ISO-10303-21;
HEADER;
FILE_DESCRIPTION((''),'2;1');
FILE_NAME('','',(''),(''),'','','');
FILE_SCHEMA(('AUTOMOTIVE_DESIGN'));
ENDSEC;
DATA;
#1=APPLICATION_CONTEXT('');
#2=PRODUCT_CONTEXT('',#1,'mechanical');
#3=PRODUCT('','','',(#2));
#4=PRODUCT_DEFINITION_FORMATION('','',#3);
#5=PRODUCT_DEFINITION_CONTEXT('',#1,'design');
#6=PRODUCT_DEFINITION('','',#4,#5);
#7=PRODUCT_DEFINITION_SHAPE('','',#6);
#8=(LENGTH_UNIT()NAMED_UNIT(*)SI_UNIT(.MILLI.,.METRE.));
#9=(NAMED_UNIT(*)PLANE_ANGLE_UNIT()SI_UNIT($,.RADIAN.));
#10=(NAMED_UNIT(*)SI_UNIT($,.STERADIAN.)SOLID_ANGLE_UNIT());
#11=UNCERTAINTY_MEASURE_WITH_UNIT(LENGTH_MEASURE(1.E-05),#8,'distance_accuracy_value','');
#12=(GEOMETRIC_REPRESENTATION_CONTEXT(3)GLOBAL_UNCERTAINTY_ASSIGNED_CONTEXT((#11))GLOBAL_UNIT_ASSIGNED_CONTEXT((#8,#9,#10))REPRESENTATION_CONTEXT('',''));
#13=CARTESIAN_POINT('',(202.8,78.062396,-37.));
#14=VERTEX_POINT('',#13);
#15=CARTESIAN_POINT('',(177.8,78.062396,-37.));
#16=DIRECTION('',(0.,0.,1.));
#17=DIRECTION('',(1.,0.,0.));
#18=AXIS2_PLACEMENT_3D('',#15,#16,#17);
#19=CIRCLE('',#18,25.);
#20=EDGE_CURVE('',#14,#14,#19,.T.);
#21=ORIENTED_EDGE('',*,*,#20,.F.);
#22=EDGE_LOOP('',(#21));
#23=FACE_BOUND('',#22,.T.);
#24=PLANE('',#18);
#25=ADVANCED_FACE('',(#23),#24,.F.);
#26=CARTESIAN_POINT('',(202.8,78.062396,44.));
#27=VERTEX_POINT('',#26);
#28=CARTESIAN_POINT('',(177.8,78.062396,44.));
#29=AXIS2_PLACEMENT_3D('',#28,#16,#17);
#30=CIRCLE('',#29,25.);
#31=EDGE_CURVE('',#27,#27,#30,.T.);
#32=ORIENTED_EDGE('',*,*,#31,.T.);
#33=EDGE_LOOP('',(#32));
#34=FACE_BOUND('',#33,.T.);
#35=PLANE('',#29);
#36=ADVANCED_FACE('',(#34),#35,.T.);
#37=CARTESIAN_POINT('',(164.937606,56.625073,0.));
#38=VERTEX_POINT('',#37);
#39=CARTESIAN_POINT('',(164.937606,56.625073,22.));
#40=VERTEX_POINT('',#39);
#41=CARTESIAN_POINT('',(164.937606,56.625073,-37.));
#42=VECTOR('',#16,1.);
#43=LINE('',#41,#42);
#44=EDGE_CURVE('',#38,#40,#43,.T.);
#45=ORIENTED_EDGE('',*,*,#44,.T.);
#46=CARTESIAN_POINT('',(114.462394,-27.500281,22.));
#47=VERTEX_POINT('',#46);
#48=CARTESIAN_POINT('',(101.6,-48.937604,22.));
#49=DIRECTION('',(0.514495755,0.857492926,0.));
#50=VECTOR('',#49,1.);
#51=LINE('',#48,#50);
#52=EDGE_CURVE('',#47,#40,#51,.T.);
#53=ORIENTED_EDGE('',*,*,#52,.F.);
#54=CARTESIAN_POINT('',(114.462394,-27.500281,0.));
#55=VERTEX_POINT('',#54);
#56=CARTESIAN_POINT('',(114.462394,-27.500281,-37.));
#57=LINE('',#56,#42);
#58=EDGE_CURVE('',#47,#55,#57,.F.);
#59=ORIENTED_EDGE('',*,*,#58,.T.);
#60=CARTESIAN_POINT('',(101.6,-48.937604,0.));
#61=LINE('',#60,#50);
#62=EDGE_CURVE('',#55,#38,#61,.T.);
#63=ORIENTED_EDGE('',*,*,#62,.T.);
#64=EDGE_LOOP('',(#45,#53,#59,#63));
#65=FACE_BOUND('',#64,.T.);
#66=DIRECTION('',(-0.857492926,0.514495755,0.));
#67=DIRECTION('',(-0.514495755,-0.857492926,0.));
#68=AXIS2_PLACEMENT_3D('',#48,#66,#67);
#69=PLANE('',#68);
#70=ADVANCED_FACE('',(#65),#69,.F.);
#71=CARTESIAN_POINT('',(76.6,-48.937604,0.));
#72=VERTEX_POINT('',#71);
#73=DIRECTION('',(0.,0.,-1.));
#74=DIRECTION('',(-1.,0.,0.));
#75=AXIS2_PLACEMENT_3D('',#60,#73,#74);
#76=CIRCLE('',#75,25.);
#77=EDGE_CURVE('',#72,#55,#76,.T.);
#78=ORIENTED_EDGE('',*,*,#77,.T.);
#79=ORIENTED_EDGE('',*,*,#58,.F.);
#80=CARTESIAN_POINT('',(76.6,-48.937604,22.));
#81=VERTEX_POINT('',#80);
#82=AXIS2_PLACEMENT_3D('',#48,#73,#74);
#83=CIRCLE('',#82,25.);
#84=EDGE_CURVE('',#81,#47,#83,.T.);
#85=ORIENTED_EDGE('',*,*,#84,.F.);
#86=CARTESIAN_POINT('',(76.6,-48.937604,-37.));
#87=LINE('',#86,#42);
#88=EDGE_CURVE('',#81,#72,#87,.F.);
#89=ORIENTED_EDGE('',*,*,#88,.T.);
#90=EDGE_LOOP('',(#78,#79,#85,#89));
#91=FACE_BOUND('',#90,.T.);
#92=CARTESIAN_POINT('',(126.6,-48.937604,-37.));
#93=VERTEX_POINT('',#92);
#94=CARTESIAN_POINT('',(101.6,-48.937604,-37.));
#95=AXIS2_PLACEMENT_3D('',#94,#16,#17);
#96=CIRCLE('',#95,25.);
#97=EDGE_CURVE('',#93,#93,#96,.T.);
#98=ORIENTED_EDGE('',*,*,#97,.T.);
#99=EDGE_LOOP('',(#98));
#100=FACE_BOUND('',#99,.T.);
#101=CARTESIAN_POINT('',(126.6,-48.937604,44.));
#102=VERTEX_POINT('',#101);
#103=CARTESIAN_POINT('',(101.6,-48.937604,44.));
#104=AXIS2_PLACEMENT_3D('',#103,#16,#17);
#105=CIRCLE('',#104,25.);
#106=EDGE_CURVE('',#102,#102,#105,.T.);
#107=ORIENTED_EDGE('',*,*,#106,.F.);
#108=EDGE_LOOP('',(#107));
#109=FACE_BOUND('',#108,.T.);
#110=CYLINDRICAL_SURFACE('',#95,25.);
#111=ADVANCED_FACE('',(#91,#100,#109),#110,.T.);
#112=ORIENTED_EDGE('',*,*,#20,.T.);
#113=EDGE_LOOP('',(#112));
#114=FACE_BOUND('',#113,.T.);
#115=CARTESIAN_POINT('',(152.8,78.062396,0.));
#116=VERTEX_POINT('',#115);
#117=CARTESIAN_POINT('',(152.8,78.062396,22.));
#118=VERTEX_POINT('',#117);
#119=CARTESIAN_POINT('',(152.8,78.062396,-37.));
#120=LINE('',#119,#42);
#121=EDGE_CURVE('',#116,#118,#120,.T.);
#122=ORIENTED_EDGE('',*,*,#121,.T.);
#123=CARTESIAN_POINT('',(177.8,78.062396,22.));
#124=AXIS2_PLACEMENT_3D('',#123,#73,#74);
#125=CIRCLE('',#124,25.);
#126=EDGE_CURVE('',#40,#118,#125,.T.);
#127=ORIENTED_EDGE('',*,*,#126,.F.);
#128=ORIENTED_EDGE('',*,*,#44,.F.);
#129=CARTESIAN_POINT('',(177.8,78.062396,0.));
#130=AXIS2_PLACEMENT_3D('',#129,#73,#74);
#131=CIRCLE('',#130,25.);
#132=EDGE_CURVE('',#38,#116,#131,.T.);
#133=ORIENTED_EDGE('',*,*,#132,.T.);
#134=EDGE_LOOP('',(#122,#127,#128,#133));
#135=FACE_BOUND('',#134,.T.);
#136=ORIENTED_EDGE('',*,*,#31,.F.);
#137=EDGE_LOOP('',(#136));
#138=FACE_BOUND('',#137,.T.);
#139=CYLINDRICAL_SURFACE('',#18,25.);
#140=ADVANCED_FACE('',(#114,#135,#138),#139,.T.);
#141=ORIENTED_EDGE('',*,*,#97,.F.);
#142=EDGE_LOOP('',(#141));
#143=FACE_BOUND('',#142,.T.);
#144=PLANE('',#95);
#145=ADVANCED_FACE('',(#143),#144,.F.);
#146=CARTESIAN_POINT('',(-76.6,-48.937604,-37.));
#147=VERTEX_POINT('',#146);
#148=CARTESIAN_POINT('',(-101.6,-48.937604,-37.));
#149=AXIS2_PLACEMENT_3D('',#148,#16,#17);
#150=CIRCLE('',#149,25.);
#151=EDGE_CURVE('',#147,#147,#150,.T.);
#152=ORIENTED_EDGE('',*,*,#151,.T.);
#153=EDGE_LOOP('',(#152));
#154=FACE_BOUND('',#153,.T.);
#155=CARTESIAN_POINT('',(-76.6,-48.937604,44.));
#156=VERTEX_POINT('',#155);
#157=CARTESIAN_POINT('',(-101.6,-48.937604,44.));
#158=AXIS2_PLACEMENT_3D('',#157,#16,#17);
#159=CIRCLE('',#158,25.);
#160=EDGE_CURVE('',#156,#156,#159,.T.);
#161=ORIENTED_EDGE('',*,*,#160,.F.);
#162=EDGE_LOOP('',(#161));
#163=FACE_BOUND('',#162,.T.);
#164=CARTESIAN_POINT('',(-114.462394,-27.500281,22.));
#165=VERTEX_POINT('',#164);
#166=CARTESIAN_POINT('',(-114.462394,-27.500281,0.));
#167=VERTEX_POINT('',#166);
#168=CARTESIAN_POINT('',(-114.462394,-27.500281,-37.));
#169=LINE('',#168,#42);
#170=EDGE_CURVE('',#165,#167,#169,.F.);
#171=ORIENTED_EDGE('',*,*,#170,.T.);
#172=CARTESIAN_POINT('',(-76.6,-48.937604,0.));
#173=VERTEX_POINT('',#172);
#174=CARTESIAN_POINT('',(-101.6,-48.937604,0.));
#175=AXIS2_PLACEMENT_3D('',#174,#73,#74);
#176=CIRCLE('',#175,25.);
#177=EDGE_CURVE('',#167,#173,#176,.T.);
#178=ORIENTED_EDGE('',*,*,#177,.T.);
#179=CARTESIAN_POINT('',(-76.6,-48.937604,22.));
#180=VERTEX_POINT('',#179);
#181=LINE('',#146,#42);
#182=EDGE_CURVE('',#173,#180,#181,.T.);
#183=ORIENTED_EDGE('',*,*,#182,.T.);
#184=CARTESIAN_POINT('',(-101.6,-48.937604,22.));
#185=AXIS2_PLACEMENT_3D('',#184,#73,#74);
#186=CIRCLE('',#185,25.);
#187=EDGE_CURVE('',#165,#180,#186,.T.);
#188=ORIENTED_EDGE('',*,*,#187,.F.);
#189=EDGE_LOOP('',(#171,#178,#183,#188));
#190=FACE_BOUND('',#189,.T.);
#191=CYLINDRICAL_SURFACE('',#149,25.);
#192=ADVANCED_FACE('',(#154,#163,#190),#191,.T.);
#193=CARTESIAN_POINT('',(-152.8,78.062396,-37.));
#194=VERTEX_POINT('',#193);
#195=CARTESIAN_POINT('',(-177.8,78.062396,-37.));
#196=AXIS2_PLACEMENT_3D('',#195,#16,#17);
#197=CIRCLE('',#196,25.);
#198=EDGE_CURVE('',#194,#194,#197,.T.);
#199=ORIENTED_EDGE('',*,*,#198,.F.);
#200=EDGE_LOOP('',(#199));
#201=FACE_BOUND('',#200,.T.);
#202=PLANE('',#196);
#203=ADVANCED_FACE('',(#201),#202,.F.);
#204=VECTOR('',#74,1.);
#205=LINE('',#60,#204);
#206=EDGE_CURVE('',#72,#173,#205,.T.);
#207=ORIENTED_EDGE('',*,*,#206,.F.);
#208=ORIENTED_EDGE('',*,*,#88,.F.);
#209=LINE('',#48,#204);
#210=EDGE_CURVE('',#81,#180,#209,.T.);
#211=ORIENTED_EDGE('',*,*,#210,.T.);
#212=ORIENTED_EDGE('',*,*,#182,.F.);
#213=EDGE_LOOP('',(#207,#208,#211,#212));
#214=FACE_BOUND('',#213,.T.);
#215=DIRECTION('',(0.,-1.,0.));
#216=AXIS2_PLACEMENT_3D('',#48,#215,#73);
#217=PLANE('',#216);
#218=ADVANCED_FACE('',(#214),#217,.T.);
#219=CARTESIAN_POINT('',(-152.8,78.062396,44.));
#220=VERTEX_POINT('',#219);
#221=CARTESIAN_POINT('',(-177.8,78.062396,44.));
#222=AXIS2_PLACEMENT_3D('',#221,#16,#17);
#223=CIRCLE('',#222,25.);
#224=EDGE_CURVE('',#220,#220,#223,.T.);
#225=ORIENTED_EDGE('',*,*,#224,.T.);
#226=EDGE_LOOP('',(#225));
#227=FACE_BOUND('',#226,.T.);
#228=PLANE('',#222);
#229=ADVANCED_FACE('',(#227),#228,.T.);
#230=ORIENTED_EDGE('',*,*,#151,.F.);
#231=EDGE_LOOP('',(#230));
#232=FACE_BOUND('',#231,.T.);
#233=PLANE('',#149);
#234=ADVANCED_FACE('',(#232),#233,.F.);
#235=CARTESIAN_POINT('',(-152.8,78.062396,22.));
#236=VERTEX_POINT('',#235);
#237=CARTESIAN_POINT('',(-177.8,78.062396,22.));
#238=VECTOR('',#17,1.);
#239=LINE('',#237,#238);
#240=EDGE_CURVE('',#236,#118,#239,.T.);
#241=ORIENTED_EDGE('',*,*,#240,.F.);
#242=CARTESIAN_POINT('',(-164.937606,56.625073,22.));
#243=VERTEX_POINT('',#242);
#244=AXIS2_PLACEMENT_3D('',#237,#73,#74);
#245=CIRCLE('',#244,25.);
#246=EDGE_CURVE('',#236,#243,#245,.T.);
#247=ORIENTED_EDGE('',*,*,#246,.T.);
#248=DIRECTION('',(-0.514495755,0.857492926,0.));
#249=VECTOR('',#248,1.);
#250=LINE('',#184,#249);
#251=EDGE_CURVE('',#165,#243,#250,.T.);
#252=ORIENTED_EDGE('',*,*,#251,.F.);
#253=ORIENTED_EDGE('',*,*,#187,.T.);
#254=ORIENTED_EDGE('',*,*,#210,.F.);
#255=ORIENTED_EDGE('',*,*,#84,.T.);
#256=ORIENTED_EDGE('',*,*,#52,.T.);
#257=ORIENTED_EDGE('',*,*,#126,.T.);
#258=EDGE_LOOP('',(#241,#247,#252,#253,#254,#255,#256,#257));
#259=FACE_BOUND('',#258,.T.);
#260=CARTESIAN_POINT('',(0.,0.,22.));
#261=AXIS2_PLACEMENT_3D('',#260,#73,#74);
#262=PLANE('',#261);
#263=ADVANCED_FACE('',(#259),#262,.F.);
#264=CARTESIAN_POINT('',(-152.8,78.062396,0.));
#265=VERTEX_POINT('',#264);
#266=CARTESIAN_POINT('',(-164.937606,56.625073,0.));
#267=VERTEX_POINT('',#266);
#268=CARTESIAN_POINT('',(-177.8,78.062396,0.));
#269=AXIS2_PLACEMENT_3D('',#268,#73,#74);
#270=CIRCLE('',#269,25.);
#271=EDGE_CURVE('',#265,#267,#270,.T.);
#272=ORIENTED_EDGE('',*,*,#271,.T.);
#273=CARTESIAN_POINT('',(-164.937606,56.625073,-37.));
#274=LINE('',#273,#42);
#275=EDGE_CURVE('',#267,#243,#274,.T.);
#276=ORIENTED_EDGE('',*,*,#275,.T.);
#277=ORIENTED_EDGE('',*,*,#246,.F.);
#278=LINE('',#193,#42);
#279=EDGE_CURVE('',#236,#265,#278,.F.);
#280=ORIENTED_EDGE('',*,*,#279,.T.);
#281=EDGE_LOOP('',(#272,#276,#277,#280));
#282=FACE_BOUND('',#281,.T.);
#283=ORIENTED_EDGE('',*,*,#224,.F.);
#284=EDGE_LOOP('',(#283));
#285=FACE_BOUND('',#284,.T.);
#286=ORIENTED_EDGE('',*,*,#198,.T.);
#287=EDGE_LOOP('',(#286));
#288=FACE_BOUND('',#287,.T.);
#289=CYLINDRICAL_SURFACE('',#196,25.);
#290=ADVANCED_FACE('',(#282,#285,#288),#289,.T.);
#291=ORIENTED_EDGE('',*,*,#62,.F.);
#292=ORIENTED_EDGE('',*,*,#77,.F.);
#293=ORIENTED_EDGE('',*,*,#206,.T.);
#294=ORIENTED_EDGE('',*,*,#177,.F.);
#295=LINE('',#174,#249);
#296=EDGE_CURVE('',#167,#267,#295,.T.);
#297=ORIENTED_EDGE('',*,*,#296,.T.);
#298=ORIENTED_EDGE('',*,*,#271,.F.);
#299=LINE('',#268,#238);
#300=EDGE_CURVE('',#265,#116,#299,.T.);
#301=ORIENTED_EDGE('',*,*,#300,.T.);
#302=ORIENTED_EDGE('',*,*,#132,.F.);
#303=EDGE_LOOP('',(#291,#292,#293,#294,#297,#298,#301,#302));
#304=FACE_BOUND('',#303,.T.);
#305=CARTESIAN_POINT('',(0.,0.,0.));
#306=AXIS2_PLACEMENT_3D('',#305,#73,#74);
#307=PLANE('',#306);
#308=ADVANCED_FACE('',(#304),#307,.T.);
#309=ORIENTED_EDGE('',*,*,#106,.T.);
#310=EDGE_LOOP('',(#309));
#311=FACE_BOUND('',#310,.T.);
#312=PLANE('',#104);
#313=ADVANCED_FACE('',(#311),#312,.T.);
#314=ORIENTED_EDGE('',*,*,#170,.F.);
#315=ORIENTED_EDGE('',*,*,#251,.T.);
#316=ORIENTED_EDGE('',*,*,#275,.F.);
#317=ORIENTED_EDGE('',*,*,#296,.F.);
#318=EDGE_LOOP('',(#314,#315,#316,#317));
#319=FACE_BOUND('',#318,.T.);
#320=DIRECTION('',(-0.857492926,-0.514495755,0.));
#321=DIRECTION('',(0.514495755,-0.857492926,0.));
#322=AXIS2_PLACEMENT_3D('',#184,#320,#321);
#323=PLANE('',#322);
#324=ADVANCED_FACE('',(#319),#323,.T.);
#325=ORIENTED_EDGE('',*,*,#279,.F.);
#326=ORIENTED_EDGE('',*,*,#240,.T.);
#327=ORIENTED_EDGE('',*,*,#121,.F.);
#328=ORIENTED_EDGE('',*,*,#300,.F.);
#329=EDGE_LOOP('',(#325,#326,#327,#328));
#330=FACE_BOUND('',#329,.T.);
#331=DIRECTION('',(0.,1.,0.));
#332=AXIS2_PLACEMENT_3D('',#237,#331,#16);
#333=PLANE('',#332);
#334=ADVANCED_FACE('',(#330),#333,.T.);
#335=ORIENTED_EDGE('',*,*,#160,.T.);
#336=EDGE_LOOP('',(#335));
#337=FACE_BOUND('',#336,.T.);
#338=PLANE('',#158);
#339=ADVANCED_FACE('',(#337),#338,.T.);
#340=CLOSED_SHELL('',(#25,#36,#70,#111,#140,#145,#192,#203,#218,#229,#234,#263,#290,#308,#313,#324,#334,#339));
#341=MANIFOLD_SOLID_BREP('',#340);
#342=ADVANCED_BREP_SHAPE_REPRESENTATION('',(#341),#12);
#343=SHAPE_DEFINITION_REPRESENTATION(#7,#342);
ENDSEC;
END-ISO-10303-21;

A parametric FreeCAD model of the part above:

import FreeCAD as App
import Part
import Sketcher
from FreeCAD import Vector
Q = App.Units.Quantity


def add_polygon(sketch, points):
    """Adds a closed chain of lines whose ends are joined by coincident constraints."""
    first, n = sketch.GeometryCount, len(points)
    for a, b in zip(points, points[1:] + points[:1]):
        sketch.addGeometry(Part.LineSegment(App.Vector(*a, 0), App.Vector(*b, 0)), False)
    for i in range(n):
        sketch.addConstraint(Sketcher.Constraint("Coincident", first + i, 2, first + (i + 1) % n, 1))

doc = App.newDocument("Part")
params = doc.addObject("Spreadsheet::Sheet", "Params")
for row, (alias, value) in enumerate([
    ("sketch1_width", "355.6 mm"),
    ("sketch1_width2", "203.2 mm"),
    ("pad1_length", "22 mm"),
    ("sketch2_diameter", "50 mm"),
    ("pad2_length", "44 mm"),
    ("pad2_length2", "37 mm"),
], start=1):
    params.set(f"A{row}", alias)
    params.set(f"B{row}", "=" + value)
    params.setAlias(f"B{row}", alias)

body = doc.addObject("PartDesign::Body", "Body")

# Sketch on XY plane
sketch1 = body.newObject("Sketcher::SketchObject", "Sketch")
sketch1.AttachmentSupport = (doc.getObject("XY_Plane"), [""])
sketch1.MapMode = "FlatFace"
add_polygon(sketch1, [(177.8, 78.062396), (-177.8, 78.062396), (-101.6, -48.937604), (101.6, -48.937604)])  # lines 0-3
sketch1.addConstraint([
    Sketcher.Constraint("Horizontal", 0),
    Sketcher.Constraint("Horizontal", 2),
    Sketcher.Constraint("Equal", 1, 3),
    Sketcher.Constraint("DistanceX", 0, 2, 0, 1, Q("355.6 mm")),
    Sketcher.Constraint("DistanceX", 2, 1, 2, 2, Q("203.2 mm")),
    Sketcher.Constraint("DistanceY", 1, 2, 0, 2, Q("127 mm")),
    Sketcher.Constraint("DistanceX", 0, 2, -1, 1, Q("177.8 mm")),
    Sketcher.Constraint("DistanceY", -1, 1, 0, 2, Q("78.062396 mm")),
])
sketch1.setExpression("Constraints[7]", "Params.sketch1_width")
sketch1.setExpression("Constraints[8]", "Params.sketch1_width2")
pad1 = body.newObject("PartDesign::Pad", "Pad")
pad1.Profile = sketch1
pad1.setExpression("Length", "Params.pad1_length")

# Sketch on XY plane
sketch2 = body.newObject("Sketcher::SketchObject", "Sketch001")
sketch2.AttachmentSupport = (doc.getObject("XY_Plane"), [""])
sketch2.MapMode = "FlatFace"
sketch2.addGeometry([
    Part.Circle(Vector(177.8, 78.062396, 0), Vector(0, 0, 1), 25),
    Part.Circle(Vector(101.6, -48.937604, 0), Vector(0, 0, 1), 25),
    Part.Circle(Vector(-101.6, -48.937604, 0), Vector(0, 0, 1), 25),
    Part.Circle(Vector(-177.8, 78.062396, 0), Vector(0, 0, 1), 25),
], False)
sketch2.addConstraint([
    Sketcher.Constraint("Equal", 0, 1),
    Sketcher.Constraint("Equal", 1, 2),
    Sketcher.Constraint("Equal", 2, 3),
    Sketcher.Constraint("Symmetric", 1, 3, 2, 3, -2),
    Sketcher.Constraint("Symmetric", 0, 3, 3, 3, -2),
    Sketcher.Constraint("Diameter", 0, Q("50 mm")),
    Sketcher.Constraint("DistanceY", 1, 3, 0, 3, Q("127 mm")),
    Sketcher.Constraint("DistanceX", -1, 1, 0, 3, Q("177.8 mm")),
    Sketcher.Constraint("DistanceX", -1, 1, 1, 3, Q("101.6 mm")),
    Sketcher.Constraint("DistanceY", -1, 1, 0, 3, Q("78.062396 mm")),
])
sketch2.setExpression("Constraints[5]", "Params.sketch2_diameter")
pad2 = body.newObject("PartDesign::Pad", "Pad001")
pad2.Profile = sketch2
pad2.Type = "TwoLengths"
pad2.setExpression("Length", "Params.pad2_length")
pad2.setExpression("Length2", "Params.pad2_length2")

doc.recompute()
